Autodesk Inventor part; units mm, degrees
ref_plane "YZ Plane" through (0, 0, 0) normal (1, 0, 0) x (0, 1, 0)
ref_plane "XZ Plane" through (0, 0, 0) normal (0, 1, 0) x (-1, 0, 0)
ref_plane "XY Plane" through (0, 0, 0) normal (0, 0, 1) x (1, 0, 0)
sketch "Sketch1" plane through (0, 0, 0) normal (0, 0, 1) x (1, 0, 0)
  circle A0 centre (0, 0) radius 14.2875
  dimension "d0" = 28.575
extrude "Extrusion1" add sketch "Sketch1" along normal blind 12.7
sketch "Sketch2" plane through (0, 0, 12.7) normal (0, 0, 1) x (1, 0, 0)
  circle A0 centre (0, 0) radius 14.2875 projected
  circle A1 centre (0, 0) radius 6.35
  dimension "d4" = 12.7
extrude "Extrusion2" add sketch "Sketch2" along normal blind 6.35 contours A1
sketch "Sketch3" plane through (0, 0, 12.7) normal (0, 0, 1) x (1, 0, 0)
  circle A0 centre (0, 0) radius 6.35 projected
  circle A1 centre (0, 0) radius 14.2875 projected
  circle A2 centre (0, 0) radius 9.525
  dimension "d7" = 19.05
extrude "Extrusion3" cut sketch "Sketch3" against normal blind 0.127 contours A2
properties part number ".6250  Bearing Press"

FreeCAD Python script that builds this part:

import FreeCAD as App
import Part
import Sketcher
Q = App.Units.Quantity

doc = App.newDocument("Part")
body = doc.addObject("PartDesign::Body", "Body")

# Sketch on XY plane
sketch1 = body.newObject("Sketcher::SketchObject", "Sketch")
sketch1.AttachmentSupport = (doc.getObject("XY_Plane"), [""])
sketch1.MapMode = "FlatFace"
sketch1.addGeometry(Part.Circle(App.Vector(0, 0, 0), App.Vector(0, 0, 1), 14), False)
sketch1.addConstraint(Sketcher.Constraint("Coincident", 0, 3, -1, 1))
sketch1.addConstraint(Sketcher.Constraint("Diameter", 0, Q("1.125 in")))
pad1 = body.newObject("PartDesign::Pad", "Pad")
pad1.Profile = sketch1
pad1.Length = Q("0.5 in")

# Sketch on XY plane
sketch2 = body.newObject("Sketcher::SketchObject", "Sketch001")
sketch2.AttachmentSupport = (doc.getObject("XY_Plane"), [""])
sketch2.MapMode = "FlatFace"
sketch2.AttachmentOffset = App.Placement(App.Vector(0, 0, 0.5 * 25.4), App.Rotation())
sketch2.addGeometry(Part.Circle(App.Vector(0, 0, 0), App.Vector(0, 0, 1), 6), False)
sketch2.addConstraint(Sketcher.Constraint("Coincident", 0, 3, -1, 1))
sketch2.addConstraint(Sketcher.Constraint("Diameter", 0, Q("0.5 in")))
pad2 = body.newObject("PartDesign::Pad", "Pad001")
pad2.Profile = sketch2
pad2.Length = Q("0.25 in")

# Sketch on XY plane
sketch3 = body.newObject("Sketcher::SketchObject", "Sketch002")
sketch3.AttachmentSupport = (doc.getObject("XY_Plane"), [""])
sketch3.MapMode = "FlatFace"
sketch3.AttachmentOffset = App.Placement(App.Vector(0, 0, 0.5 * 25.4), App.Rotation())
sketch3.addGeometry(Part.Circle(App.Vector(0, 0, 0), App.Vector(0, 0, 1), 10), False)
sketch3.addGeometry(Part.Circle(App.Vector(0, 0, 0), App.Vector(0, 0, 1), 6), False)
sketch3.addConstraint(Sketcher.Constraint("Coincident", 0, 3, -1, 1))
sketch3.addConstraint(Sketcher.Constraint("Coincident", 1, 3, -1, 1))
sketch3.addConstraint(Sketcher.Constraint("Diameter", 0, Q("0.75 in")))
sketch3.addConstraint(Sketcher.Constraint("Diameter", 1, Q("0.5 in")))
pocket1 = body.newObject("PartDesign::Pocket", "Pocket")
pocket1.Profile = sketch3
pocket1.Length = Q("0.005 in")

doc.recompute()
